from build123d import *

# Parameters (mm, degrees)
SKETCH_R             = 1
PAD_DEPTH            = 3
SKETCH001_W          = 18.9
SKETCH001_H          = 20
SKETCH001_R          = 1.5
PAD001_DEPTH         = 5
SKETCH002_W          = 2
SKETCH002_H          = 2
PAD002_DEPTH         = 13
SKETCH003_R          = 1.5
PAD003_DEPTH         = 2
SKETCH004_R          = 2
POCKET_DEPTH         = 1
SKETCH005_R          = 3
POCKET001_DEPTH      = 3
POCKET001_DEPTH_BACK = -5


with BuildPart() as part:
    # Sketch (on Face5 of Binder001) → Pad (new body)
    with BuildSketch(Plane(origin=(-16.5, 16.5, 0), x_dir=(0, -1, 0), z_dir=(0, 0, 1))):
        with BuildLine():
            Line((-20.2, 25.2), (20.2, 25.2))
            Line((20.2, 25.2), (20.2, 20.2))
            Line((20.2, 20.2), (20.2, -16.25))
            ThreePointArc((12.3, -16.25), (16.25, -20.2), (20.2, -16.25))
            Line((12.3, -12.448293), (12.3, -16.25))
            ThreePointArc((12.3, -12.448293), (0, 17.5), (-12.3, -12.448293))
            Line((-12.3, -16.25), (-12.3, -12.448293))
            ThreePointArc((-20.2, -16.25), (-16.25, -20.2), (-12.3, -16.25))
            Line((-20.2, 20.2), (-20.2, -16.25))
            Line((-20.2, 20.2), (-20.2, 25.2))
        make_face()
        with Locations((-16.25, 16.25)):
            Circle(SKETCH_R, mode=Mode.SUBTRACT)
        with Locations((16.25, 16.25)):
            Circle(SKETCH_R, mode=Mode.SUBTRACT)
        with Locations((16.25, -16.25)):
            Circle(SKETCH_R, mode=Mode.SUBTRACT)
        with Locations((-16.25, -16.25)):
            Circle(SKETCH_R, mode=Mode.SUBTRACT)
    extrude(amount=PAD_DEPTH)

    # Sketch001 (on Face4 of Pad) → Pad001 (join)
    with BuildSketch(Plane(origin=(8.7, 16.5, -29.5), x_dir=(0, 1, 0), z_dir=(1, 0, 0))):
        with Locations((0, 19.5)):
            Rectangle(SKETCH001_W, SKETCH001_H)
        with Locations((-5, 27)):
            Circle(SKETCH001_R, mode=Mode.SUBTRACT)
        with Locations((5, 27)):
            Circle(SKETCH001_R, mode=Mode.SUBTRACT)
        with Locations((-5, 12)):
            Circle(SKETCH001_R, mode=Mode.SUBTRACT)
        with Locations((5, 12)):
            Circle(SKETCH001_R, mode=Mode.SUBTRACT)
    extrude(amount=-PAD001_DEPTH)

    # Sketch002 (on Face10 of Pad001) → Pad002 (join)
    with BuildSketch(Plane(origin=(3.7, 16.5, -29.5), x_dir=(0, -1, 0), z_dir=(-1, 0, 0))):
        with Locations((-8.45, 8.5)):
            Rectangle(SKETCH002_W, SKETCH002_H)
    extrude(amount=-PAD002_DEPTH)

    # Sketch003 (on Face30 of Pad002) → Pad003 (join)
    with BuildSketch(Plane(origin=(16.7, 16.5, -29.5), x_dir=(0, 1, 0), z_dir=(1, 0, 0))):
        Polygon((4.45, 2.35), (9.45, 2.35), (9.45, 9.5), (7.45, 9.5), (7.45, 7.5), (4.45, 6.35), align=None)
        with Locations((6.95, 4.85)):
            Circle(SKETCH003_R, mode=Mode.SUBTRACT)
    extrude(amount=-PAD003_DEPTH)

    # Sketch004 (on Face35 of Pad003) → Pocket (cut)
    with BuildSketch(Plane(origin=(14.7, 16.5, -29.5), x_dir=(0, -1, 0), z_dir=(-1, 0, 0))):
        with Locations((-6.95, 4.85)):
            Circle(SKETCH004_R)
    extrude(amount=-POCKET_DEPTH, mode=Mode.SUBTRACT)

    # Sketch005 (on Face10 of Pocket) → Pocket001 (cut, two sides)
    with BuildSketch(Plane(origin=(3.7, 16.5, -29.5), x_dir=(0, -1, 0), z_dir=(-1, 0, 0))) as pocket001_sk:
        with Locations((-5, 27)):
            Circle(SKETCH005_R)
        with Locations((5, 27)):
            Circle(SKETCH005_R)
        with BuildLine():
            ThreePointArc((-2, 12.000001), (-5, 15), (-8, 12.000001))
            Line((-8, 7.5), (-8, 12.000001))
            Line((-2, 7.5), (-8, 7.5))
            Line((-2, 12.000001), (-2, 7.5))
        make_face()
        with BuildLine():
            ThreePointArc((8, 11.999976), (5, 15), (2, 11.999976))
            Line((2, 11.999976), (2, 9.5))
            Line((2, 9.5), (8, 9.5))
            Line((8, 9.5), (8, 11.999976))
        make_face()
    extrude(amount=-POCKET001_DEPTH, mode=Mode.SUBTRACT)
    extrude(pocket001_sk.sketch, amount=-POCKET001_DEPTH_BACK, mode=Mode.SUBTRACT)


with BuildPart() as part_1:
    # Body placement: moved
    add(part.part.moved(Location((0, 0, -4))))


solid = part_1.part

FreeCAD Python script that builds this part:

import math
import FreeCAD as App
import Part
import Sketcher

V = App.Vector


def add_polygon(sketch, points):
    """Adds a closed chain of lines whose ends are joined by coincident constraints."""
    first, n = sketch.GeometryCount, len(points)
    for a, b in zip(points, points[1:] + points[:1]):
        sketch.addGeometry(Part.LineSegment(App.Vector(*a, 0), App.Vector(*b, 0)), False)
    for i in range(n):
        sketch.addConstraint(Sketcher.Constraint("Coincident", first + i, 2, first + (i + 1) % n, 1))

doc = App.newDocument("Part")
body = doc.addObject("PartDesign::Body", "Body")

# Sketch on XY plane
sketch1 = doc.addObject("Sketcher::SketchObject", "Sketch")
body.addObject(sketch1)
sketch1.AttachmentSupport = (doc.XY_Plane, [""])
sketch1.MapMode = "FlatFace"
sketch1.addGeometry(Part.LineSegment(V(8.7, -3.7, 0), V(8.7, 36.7, 0)), False)
sketch1.addGeometry(Part.LineSegment(V(8.7, 36.7, 0), V(-32.8, 36.7, 0)), False)
sketch1.addGeometry(Part.ArcOfCircle(Part.Circle(V(-32.8, 32.8, 0), V(0, 0, 1), 4), math.radians(90), math.radians(270)), False)
sketch1.addGeometry(Part.LineSegment(V(-32.8, 28.8, 0), V(-28.9, 28.8, 0)), False)
sketch1.addGeometry(Part.ArcOfCircle(Part.Circle(V(-16.5, 16.5, 0), V(0, 0, 1), 17.5), math.radians(-135), math.radians(135)), False)
sketch1.addGeometry(Part.LineSegment(V(-28.9, 4.2, 0), V(-32.8, 4.2, 0)), False)
sketch1.addGeometry(Part.ArcOfCircle(Part.Circle(V(-32.8, 0.2, 0), V(0, 0, 1), 4), math.radians(90), math.radians(270)), False)
sketch1.addGeometry(Part.LineSegment(V(-32.8, -3.7, 0), V(8.7, -3.7, 0)), False)
sketch1.addGeometry(Part.Circle(V(-32.8, 0.2, 0), V(0, 0, 1), 1), False)
sketch1.addGeometry(Part.Circle(V(-32.8, 32.8, 0), V(0, 0, 1), 1), False)
sketch1.addGeometry(Part.Circle(V(-0.2, 0.2, 0), V(0, 0, 1), 1), False)
sketch1.addGeometry(Part.Circle(V(-0.2, 32.8, 0), V(0, 0, 1), 1), False)
sketch1.addConstraint(Sketcher.Constraint("Coincident", 0, 2, 1, 1))
sketch1.addConstraint(Sketcher.Constraint("Tangent", 1, 2, 2, 1))
sketch1.addConstraint(Sketcher.Constraint("Tangent", 2, 2, 3, 1))
sketch1.addConstraint(Sketcher.Constraint("Coincident", 3, 2, 4, 2))
sketch1.addConstraint(Sketcher.Constraint("Coincident", 4, 1, 5, 1))
sketch1.addConstraint(Sketcher.Constraint("Tangent", 5, 2, 6, 1))
sketch1.addConstraint(Sketcher.Constraint("Tangent", 6, 2, 7, 1))
sketch1.addConstraint(Sketcher.Constraint("Coincident", 7, 2, 0, 1))
sketch1.addConstraint(Sketcher.Constraint("Vertical", 0))
sketch1.addConstraint(Sketcher.Constraint("Horizontal", 1))
sketch1.addConstraint(Sketcher.Constraint("Horizontal", 3))
sketch1.addConstraint(Sketcher.Constraint("Horizontal", 5))
sketch1.addConstraint(Sketcher.Constraint("Horizontal", 7))
sketch1.addConstraint(Sketcher.Constraint("Coincident", 8, 3, 6, 3))
sketch1.addConstraint(Sketcher.Constraint("Coincident", 9, 3, 2, 3))
sketch1.addConstraint(Sketcher.Constraint("Equal", 2, 6))
sketch1.addConstraint(Sketcher.Constraint("Equal", 8, 9))
sketch1.addConstraint(Sketcher.Constraint("Equal", 9, 10))
sketch1.addConstraint(Sketcher.Constraint("Equal", 10, 11))
sketch1.addConstraint(Sketcher.Constraint("Horizontal", 8, 3, 10, 3))
sketch1.addConstraint(Sketcher.Constraint("Horizontal", 9, 3, 11, 3))
sketch1.addConstraint(Sketcher.Constraint("Vertical", 2, 3, 6, 3))
sketch1.addConstraint(Sketcher.Constraint("Vertical", 10, 3, 11, 3))
sketch1.addConstraint(Sketcher.Constraint("Vertical", 3, 2, 4, 1))
sketch1.addConstraint(Sketcher.Constraint("Diameter", 8, 2.0))
sketch1.addConstraint(Sketcher.Constraint("Radius", 4, 17.5))
sketch1.addConstraint(Sketcher.Constraint("Radius", 2, 3.95))
sketch1.addConstraint(Sketcher.Constraint("DistanceY", 0, 1, 0, 2, 40.4))
sketch1.addConstraint(Sketcher.Constraint("DistanceX", 1, 2, 1, 1, 41.45))
sketch1.addConstraint(Sketcher.Constraint("DistanceX", 4, 3, -1, 1, 16.5))
sketch1.addConstraint(Sketcher.Constraint("DistanceY", -1, 1, 4, 3, 16.5))
sketch1.addConstraint(Sketcher.Constraint("DistanceX", -1, 1, 0, 2, 8.7))
sketch1.addConstraint(Sketcher.Constraint("DistanceX", 6, 3, 10, 3, 32.5))
pad1 = doc.addObject("PartDesign::Pad", "Pad")
body.addObject(pad1)
pad1.Profile = sketch1
pad1.Length = 3

# Sketch on YZ plane
sketch2 = doc.addObject("Sketcher::SketchObject", "Sketch001")
body.addObject(sketch2)
sketch2.AttachmentSupport = (doc.YZ_Plane, [""])
sketch2.MapMode = "FlatFace"
sketch2.AttachmentOffset = App.Placement(V(0, 0, 8.7), App.Rotation())
add_polygon(sketch2, [(7, 0), (7, -20), (25.9, -20), (25.9, 0)])  # lines 0-3
sketch2.addGeometry(Part.Circle(V(11.5, -17.5, 0), V(0, 0, 1), 1.5), False)  # 4
sketch2.addGeometry(Part.Circle(V(21.5, -17.5, 0), V(0, 0, 1), 1.5), False)  # 5
sketch2.addGeometry(Part.Circle(V(11.5, -2.5, 0), V(0, 0, 1), 1.5), False)  # 6
sketch2.addGeometry(Part.Circle(V(21.5, -2.5, 0), V(0, 0, 1), 1.5), False)  # 7
sketch2.addConstraint(Sketcher.Constraint("Vertical", 0))
sketch2.addConstraint(Sketcher.Constraint("Horizontal", 1))
sketch2.addConstraint(Sketcher.Constraint("Vertical", 2))
sketch2.addConstraint(Sketcher.Constraint("Horizontal", 3))
sketch2.addConstraint(Sketcher.Constraint("Equal", 4, 5))
sketch2.addConstraint(Sketcher.Constraint("Equal", 5, 6))
sketch2.addConstraint(Sketcher.Constraint("Equal", 6, 7))
sketch2.addConstraint(Sketcher.Constraint("PointOnObject", 2, 2, -1))
sketch2.addConstraint(Sketcher.Constraint("Horizontal", 4, 3, 5, 3))
sketch2.addConstraint(Sketcher.Constraint("Horizontal", 6, 3, 7, 3))
sketch2.addConstraint(Sketcher.Constraint("Vertical", 4, 3, 6, 3))
sketch2.addConstraint(Sketcher.Constraint("Vertical", 5, 3, 7, 3))
sketch2.addConstraint(Sketcher.Constraint("Diameter", 4, 3.0))
sketch2.addConstraint(Sketcher.Constraint("DistanceY", 0, 2, 0, 1, 20.0))
sketch2.addConstraint(Sketcher.Constraint("DistanceX", 1, 1, 1, 2, 18.9))
sketch2.addConstraint(Sketcher.Constraint("DistanceX", 4, 3, 5, 3, 10.0))
sketch2.addConstraint(Sketcher.Constraint("DistanceY", 4, 3, 6, 3, 15.0))
sketch2.addConstraint(Sketcher.Constraint("DistanceX", -1, 1, 4, 3, 11.5))
sketch2.addConstraint(Sketcher.Constraint("DistanceY", 4, 3, -1, 1, 17.5))
sketch2.addConstraint(Sketcher.Constraint("DistanceX", -1, 1, 0, 2, 7.05))
pad2 = doc.addObject("PartDesign::Pad", "Pad001")
body.addObject(pad2)
pad2.Profile = sketch2
pad2.Length = 5
pad2.Reversed = True

# Sketch on YZ plane
sketch3 = doc.addObject("Sketcher::SketchObject", "Sketch002")
body.addObject(sketch3)
sketch3.AttachmentSupport = (doc.YZ_Plane, [""])
sketch3.MapMode = "FlatFace"
sketch3.AttachmentOffset = App.Placement(V(0, 0, 3.7), App.Rotation())
add_polygon(sketch3, [(25.9, -20), (25.9, -22), (23.9, -22), (23.9, -20)])  # lines 0-3
sketch3.addConstraint(Sketcher.Constraint("Vertical", 0))
sketch3.addConstraint(Sketcher.Constraint("Horizontal", 1))
sketch3.addConstraint(Sketcher.Constraint("Vertical", 2))
sketch3.addConstraint(Sketcher.Constraint("Horizontal", 3))
sketch3.addConstraint(Sketcher.Constraint("Equal", 3, 0))
sketch3.addConstraint(Sketcher.Constraint("DistanceX", 1, 2, 1, 1, 2.0))
sketch3.addConstraint(Sketcher.Constraint("DistanceY", 0, 2, -1, 1, 22.0))
sketch3.addConstraint(Sketcher.Constraint("DistanceX", -1, 1, 0, 2, 25.95))
pad3 = doc.addObject("PartDesign::Pad", "Pad002")
body.addObject(pad3)
pad3.Profile = sketch3
pad3.Length = 13

# Sketch on YZ plane
sketch4 = doc.addObject("Sketcher::SketchObject", "Sketch003")
body.addObject(sketch4)
sketch4.AttachmentSupport = (doc.YZ_Plane, [""])
sketch4.MapMode = "FlatFace"
sketch4.AttachmentOffset = App.Placement(V(0, 0, 16.7), App.Rotation())
add_polygon(sketch4, [(20.9, -27.1), (25.9, -27.1), (25.9, -20), (23.9, -20), (23.9, -22), (20.9, -23.1)])  # lines 0-5
sketch4.addGeometry(Part.Circle(V(23.4, -24.6, 0), V(0, 0, 1), 1.5), False)  # 6
sketch4.addConstraint(Sketcher.Constraint("Horizontal", 0))
sketch4.addConstraint(Sketcher.Constraint("Vertical", 1))
sketch4.addConstraint(Sketcher.Constraint("Horizontal", 2))
sketch4.addConstraint(Sketcher.Constraint("Vertical", 3))
sketch4.addConstraint(Sketcher.Constraint("Vertical", 5))
sketch4.addConstraint(Sketcher.Constraint("Equal", 2, 3))
sketch4.addConstraint(Sketcher.Constraint("Diameter", 6, 3.0))
sketch4.addConstraint(Sketcher.Constraint("DistanceX", 0, 1, 0, 2, 5.0))
sketch4.addConstraint(Sketcher.Constraint("DistanceX", 2, 2, 2, 1, 2.0))
sketch4.addConstraint(Sketcher.Constraint("DistanceY", 5, 2, 5, 1, 4.0))
sketch4.addConstraint(Sketcher.Constraint("DistanceY", 1, 2, -1, 1, 20.0))
sketch4.addConstraint(Sketcher.Constraint("DistanceY", 1, 1, 1, 2, 7.15))
sketch4.addConstraint(Sketcher.Constraint("DistanceX", 6, 3, 0, 2, 2.5))
sketch4.addConstraint(Sketcher.Constraint("DistanceY", 0, 2, 6, 3, 2.5))
sketch4.addConstraint(Sketcher.Constraint("DistanceX", -1, 1, 6, 3, 23.45))
pad4 = doc.addObject("PartDesign::Pad", "Pad003")
body.addObject(pad4)
pad4.Profile = sketch4
pad4.Length = 2
pad4.Reversed = True

# Sketch on YZ plane
sketch5 = doc.addObject("Sketcher::SketchObject", "Sketch004")
body.addObject(sketch5)
sketch5.AttachmentSupport = (doc.YZ_Plane, [""])
sketch5.MapMode = "FlatFace"
sketch5.AttachmentOffset = App.Placement(V(0, 0, 14.7), App.Rotation())
sketch5.addGeometry(Part.Circle(V(23.4, -24.6, 0), V(0, 0, 1), 2), False)
sketch5.addConstraint(Sketcher.Constraint("Diameter", 0, 4.0))
sketch5.addConstraint(Sketcher.Constraint("DistanceX", -1, 1, 0, 3, 23.45))
sketch5.addConstraint(Sketcher.Constraint("DistanceY", 0, 3, -1, 1, 24.65))
pocket1 = doc.addObject("PartDesign::Pocket", "Pocket")
body.addObject(pocket1)
pocket1.Profile = sketch5
pocket1.Length = 1
pocket1.Reversed = True

# Sketch on YZ plane
sketch6 = doc.addObject("Sketcher::SketchObject", "Sketch005")
body.addObject(sketch6)
sketch6.AttachmentSupport = (doc.YZ_Plane, [""])
sketch6.MapMode = "FlatFace"
sketch6.AttachmentOffset = App.Placement(V(0, 0, 3.7), App.Rotation())
sketch6.addGeometry(Part.Circle(V(21.5, -2.5, 0), V(0, 0, 1), 3), False)
sketch6.addGeometry(Part.Circle(V(11.5, -2.5, 0), V(0, 0, 1), 3), False)
sketch6.addGeometry(Part.ArcOfCircle(Part.Circle(V(21.5, -17.5, 0), V(0, 0, 1), 3), math.radians(0), math.radians(180)), False)
sketch6.addGeometry(Part.LineSegment(V(24.5, -17.5, 0), V(24.5, -22, 0)), False)
sketch6.addGeometry(Part.LineSegment(V(24.5, -22, 0), V(18.5, -22, 0)), False)
sketch6.addGeometry(Part.LineSegment(V(18.5, -22, 0), V(18.5, -17.5, 0)), False)
sketch6.addGeometry(Part.ArcOfCircle(Part.Circle(V(11.5, -17.5, 0), V(0, 0, 1), 3), math.radians(0), math.radians(180)), False)
sketch6.addGeometry(Part.LineSegment(V(14.5, -17.5, 0), V(14.5, -20, 0)), False)
sketch6.addGeometry(Part.LineSegment(V(14.5, -20, 0), V(8.5, -20, 0)), False)
sketch6.addGeometry(Part.LineSegment(V(8.5, -20, 0), V(8.5, -17.5, 0)), False)
sketch6.addConstraint(Sketcher.Constraint("Tangent", 2, 1, 3, 1))
sketch6.addConstraint(Sketcher.Constraint("Coincident", 3, 2, 4, 1))
sketch6.addConstraint(Sketcher.Constraint("Coincident", 4, 2, 5, 1))
sketch6.addConstraint(Sketcher.Constraint("Tangent", 5, 2, 2, 2))
sketch6.addConstraint(Sketcher.Constraint("Coincident", 6, 1, 7, 1))
sketch6.addConstraint(Sketcher.Constraint("Coincident", 7, 2, 8, 1))
sketch6.addConstraint(Sketcher.Constraint("Coincident", 8, 2, 9, 1))
sketch6.addConstraint(Sketcher.Constraint("Coincident", 9, 2, 6, 2))
sketch6.addConstraint(Sketcher.Constraint("Vertical", 3))
sketch6.addConstraint(Sketcher.Constraint("Horizontal", 4))
sketch6.addConstraint(Sketcher.Constraint("Vertical", 5))
sketch6.addConstraint(Sketcher.Constraint("Vertical", 7))
sketch6.addConstraint(Sketcher.Constraint("Horizontal", 8))
sketch6.addConstraint(Sketcher.Constraint("Vertical", 9))
sketch6.addConstraint(Sketcher.Constraint("Equal", 0, 1))
sketch6.addConstraint(Sketcher.Constraint("Equal", 1, 2))
sketch6.addConstraint(Sketcher.Constraint("Equal", 2, 6))
sketch6.addConstraint(Sketcher.Constraint("Horizontal", 0, 3, 1, 3))
sketch6.addConstraint(Sketcher.Constraint("Horizontal", 2, 3, 6, 3))
sketch6.addConstraint(Sketcher.Constraint("Horizontal", 6, 1, 9, 2))
sketch6.addConstraint(Sketcher.Constraint("Vertical", 0, 3, 2, 3))
sketch6.addConstraint(Sketcher.Constraint("Vertical", 1, 3, 6, 3))
sketch6.addConstraint(Sketcher.Constraint("Diameter", 0, 6.0))
sketch6.addConstraint(Sketcher.Constraint("DistanceY", 3, 2, 3, 1, 4.500001))
sketch6.addConstraint(Sketcher.Constraint("DistanceY", 3, 2, -1, 1, 22.0))
sketch6.addConstraint(Sketcher.Constraint("DistanceY", 7, 2, -1, 1, 20.0))
sketch6.addConstraint(Sketcher.Constraint("DistanceX", 1, 3, 0, 3, 10.0))
sketch6.addConstraint(Sketcher.Constraint("DistanceY", 2, 3, 0, 3, 15.0))
sketch6.addConstraint(Sketcher.Constraint("DistanceX", -1, 1, 0, 3, 21.5))
sketch6.addConstraint(Sketcher.Constraint("DistanceY", 7, 2, 7, 1, 2.499976))
pocket2 = doc.addObject("PartDesign::Pocket", "Pocket001")
body.addObject(pocket2)
pocket2.Profile = sketch6
pocket2.Type = "TwoLengths"
pocket2.Length = 3
pocket2.Length2 = 5
pocket2.Reversed = True
body2 = doc.addObject("PartDesign::Body", "Body001")
doc.recompute()

body.Placement = App.Placement(V(0, 0, -4), App.Rotation(V(0, 0, 1), 0))
boolean = doc.addObject("PartDesign::Boolean", "Boolean")
body2.addObject(boolean)
boolean.Type = "Fuse"
boolean.addObjects([body])

doc.recompute()
